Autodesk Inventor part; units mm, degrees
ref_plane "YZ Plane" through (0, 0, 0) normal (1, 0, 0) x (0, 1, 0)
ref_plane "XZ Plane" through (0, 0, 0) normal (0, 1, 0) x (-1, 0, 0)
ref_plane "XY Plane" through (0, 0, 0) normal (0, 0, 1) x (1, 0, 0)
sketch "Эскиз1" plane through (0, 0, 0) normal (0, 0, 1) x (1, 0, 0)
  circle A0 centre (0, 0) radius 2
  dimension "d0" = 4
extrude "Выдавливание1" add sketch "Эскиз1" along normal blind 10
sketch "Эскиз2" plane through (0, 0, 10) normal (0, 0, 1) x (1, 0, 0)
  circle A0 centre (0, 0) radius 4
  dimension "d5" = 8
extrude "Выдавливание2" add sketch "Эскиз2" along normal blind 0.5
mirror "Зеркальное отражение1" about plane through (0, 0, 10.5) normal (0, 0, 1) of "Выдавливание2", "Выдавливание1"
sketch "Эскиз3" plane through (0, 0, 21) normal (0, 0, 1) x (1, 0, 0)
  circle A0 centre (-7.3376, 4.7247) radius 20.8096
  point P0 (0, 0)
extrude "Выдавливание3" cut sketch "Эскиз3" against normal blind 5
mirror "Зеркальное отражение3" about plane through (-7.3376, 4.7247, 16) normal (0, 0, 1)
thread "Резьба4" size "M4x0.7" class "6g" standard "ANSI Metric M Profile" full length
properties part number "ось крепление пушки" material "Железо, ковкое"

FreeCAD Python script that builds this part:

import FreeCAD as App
import Part
import Sketcher

doc = App.newDocument("Part")
body = doc.addObject("PartDesign::Body", "Body")

# Sketch on XY plane
sketch1 = doc.addObject("Sketcher::SketchObject", "Sketch")
body.addObject(sketch1)
sketch1.AttachmentSupport = (doc.XY_Plane, [""])
sketch1.MapMode = "FlatFace"
sketch1.addGeometry(Part.Circle(App.Vector(0, 0, 0), App.Vector(0, 0, 1), 2), False)
sketch1.addConstraint([
    Sketcher.Constraint("Coincident", 0, 3, -1, 1),
    Sketcher.Constraint("Diameter", 0, 4.0),
])
pad1 = doc.addObject("PartDesign::Pad", "Pad")
body.addObject(pad1)
pad1.Profile = sketch1
pad1.Length = 10

# Sketch on XY plane
sketch2 = doc.addObject("Sketcher::SketchObject", "Sketch001")
body.addObject(sketch2)
sketch2.AttachmentSupport = (doc.XY_Plane, [""])
sketch2.MapMode = "FlatFace"
sketch2.AttachmentOffset = App.Placement(App.Vector(0, 0, 10), App.Rotation())
sketch2.addGeometry(Part.Circle(App.Vector(0, 0, 0), App.Vector(0, 0, 1), 4), False)
sketch2.addConstraint([
    Sketcher.Constraint("Coincident", 0, 3, -1, 1),
    Sketcher.Constraint("Diameter", 0, 8.0),
])
pad2 = doc.addObject("PartDesign::Pad", "Pad001")
body.addObject(pad2)
pad2.Profile = sketch2
pad2.Length = 0.5
doc.recompute()

datumplane = doc.addObject("PartDesign::Plane", "DatumPlane")
body.addObject(datumplane)
datumplane.AttachmentSupport = (doc.XY_Plane, [""])
datumplane.MapMode = "FlatFace"
datumplane.AttachmentOffset = App.Placement(App.Vector(0, 0, 10.5), App.Rotation())
mirrored = doc.addObject("PartDesign::Mirrored", "Mirrored")
body.addObject(mirrored)
mirrored.Originals = [pad2, pad1]
mirrored.MirrorPlane = (datumplane, [""])
body.Tip = mirrored

# Sketch on XY plane
sketch3 = doc.addObject("Sketcher::SketchObject", "Sketch002")
body.addObject(sketch3)
sketch3.AttachmentSupport = (doc.XY_Plane, [""])
sketch3.MapMode = "FlatFace"
sketch3.AttachmentOffset = App.Placement(App.Vector(0, 0, 21), App.Rotation())
sketch3.addGeometry(Part.Circle(App.Vector(-7, 5, 0), App.Vector(0, 0, 1), 21), False)
sketch3.addConstraint([
    Sketcher.Constraint("Diameter", 0, 41.6192),
    Sketcher.Constraint("DistanceX", 0, 3, -1, 1, 7.3376),
    Sketcher.Constraint("DistanceY", -1, 1, 0, 3, 4.7247),
])
pocket1 = doc.addObject("PartDesign::Pocket", "Pocket")
body.addObject(pocket1)
pocket1.Profile = sketch3
pocket1.Length = 5
doc.recompute()

datumplane2 = doc.addObject("PartDesign::Plane", "DatumPlane001")
body.addObject(datumplane2)
datumplane2.AttachmentSupport = (doc.XY_Plane, [""])
datumplane2.MapMode = "FlatFace"
datumplane2.AttachmentOffset = App.Placement(App.Vector(0, 0, 16), App.Rotation())
mirrored2 = doc.addObject("PartDesign::Mirrored", "Mirrored001")
body.addObject(mirrored2)
mirrored2.TransformMode = "Transform body"
mirrored2.MirrorPlane = (datumplane2, [""])
body.Tip = mirrored2

doc.recompute()
